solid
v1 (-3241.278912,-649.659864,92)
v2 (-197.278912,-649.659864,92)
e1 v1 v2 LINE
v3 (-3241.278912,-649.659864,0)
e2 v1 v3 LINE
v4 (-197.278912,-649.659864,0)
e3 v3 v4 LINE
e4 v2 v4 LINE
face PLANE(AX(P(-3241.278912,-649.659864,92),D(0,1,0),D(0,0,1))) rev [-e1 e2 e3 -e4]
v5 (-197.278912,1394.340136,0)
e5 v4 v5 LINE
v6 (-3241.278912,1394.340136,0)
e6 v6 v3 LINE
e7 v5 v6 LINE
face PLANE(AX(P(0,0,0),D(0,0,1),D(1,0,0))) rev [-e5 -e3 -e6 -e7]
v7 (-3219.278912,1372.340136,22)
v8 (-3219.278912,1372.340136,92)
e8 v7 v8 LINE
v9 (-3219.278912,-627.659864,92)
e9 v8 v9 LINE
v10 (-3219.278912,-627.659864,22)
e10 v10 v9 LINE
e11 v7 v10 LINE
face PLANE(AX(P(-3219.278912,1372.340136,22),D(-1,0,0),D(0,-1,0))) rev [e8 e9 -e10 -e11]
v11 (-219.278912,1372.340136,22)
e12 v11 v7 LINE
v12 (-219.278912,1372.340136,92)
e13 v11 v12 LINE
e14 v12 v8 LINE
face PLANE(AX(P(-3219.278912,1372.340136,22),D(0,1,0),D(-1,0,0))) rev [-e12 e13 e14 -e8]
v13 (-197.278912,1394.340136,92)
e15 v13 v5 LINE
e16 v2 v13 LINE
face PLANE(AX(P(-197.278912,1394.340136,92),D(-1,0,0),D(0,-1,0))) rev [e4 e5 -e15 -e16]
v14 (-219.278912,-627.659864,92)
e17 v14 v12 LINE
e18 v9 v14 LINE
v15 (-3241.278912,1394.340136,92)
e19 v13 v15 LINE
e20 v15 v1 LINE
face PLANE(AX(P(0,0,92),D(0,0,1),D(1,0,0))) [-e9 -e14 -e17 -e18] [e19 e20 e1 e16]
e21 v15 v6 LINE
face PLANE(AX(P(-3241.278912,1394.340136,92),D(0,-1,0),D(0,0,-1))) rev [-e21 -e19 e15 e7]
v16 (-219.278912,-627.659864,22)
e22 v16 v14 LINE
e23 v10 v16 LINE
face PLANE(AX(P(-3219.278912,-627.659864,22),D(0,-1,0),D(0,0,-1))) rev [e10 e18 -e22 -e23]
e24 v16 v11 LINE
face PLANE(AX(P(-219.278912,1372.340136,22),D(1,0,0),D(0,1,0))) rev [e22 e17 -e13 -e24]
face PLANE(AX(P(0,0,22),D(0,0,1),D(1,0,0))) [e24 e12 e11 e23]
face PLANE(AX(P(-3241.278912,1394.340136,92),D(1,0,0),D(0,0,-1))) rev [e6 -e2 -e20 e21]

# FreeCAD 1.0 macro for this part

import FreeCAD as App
import Part
import Sketcher

doc = App.newDocument("Part")
params = doc.addObject("Spreadsheet::Sheet", "Params")
for row, (alias, value) in enumerate([
    ("sketch1_width", "3044 mm"),
    ("sketch1_height", "2044 mm"),
    ("pad1_length", "92 mm"),
    ("sketch2_width", "3000 mm"),
    ("sketch2_height", "2000 mm"),
    ("pocket1_length", "70 mm"),
], start=1):
    params.set(f"A{row}", alias)
    params.set(f"B{row}", "=" + value)
    params.setAlias(f"B{row}", alias)

body = doc.addObject("PartDesign::Body", "Body")

sketch1 = body.newObject("Sketcher::SketchObject", "Sketch")
sketch1.AttachmentSupport = (doc.getObject("XY_Plane"), [""])
sketch1.MapMode = "FlatFace"
sketch1.addGeometry([
    Part.LineSegment(App.Vector(-3241, 1394, 0), App.Vector(-3241, -650, 0)),
    Part.LineSegment(App.Vector(-3241, -650, 0), App.Vector(-197, -650, 0)),
    Part.LineSegment(App.Vector(-197, -650, 0), App.Vector(-197, 1394, 0)),
    Part.LineSegment(App.Vector(-197, 1394, 0), App.Vector(-3241, 1394, 0)),
], False)
sketch1.addConstraint([
    Sketcher.Constraint("Coincident", 0, 2, 1, 1),
    Sketcher.Constraint("Coincident", 1, 2, 2, 1),
    Sketcher.Constraint("Coincident", 2, 2, 3, 1),
    Sketcher.Constraint("Coincident", 3, 2, 0, 1),
    Sketcher.Constraint("Vertical", 0),
    Sketcher.Constraint("Horizontal", 1),
    Sketcher.Constraint("Vertical", 2),
    Sketcher.Constraint("Horizontal", 3),
    Sketcher.Constraint("DistanceX", 1, 1, 1, 2, 3044.0),
    Sketcher.Constraint("DistanceY", 0, 2, 0, 1, 2044.0),
    Sketcher.Constraint("DistanceX", 0, 2, -1, 1, 3241.278912),
    Sketcher.Constraint("DistanceY", 0, 2, -1, 1, 649.659864),
])
sketch1.setExpression("Constraints[8]", "Params.sketch1_width")
sketch1.setExpression("Constraints[9]", "Params.sketch1_height")
pad1 = body.newObject("PartDesign::Pad", "Pad")
pad1.Profile = sketch1
pad1.setExpression("Length", "Params.pad1_length")

sketch2 = body.newObject("Sketcher::SketchObject", "Sketch001")
sketch2.AttachmentSupport = (doc.getObject("XY_Plane"), [""])
sketch2.MapMode = "FlatFace"
sketch2.AttachmentOffset = App.Placement(App.Vector(0, 0, 92), App.Rotation())
sketch2.addGeometry([
    Part.LineSegment(App.Vector(-3219, 1372, 0), App.Vector(-3219, -628, 0)),
    Part.LineSegment(App.Vector(-3219, -628, 0), App.Vector(-219, -628, 0)),
    Part.LineSegment(App.Vector(-219, -628, 0), App.Vector(-219, 1372, 0)),
    Part.LineSegment(App.Vector(-219, 1372, 0), App.Vector(-3219, 1372, 0)),
], False)
sketch2.addConstraint([
    Sketcher.Constraint("Coincident", 0, 2, 1, 1),
    Sketcher.Constraint("Coincident", 1, 2, 2, 1),
    Sketcher.Constraint("Coincident", 2, 2, 3, 1),
    Sketcher.Constraint("Coincident", 3, 2, 0, 1),
    Sketcher.Constraint("Vertical", 0),
    Sketcher.Constraint("Horizontal", 1),
    Sketcher.Constraint("Vertical", 2),
    Sketcher.Constraint("Horizontal", 3),
    Sketcher.Constraint("DistanceX", 1, 1, 1, 2, 3000.0),
    Sketcher.Constraint("DistanceY", 0, 2, 0, 1, 2000.0),
    Sketcher.Constraint("DistanceX", 0, 2, -1, 1, 3219.278912),
    Sketcher.Constraint("DistanceY", 0, 2, -1, 1, 627.659864),
])
sketch2.setExpression("Constraints[8]", "Params.sketch2_width")
sketch2.setExpression("Constraints[9]", "Params.sketch2_height")
pocket1 = body.newObject("PartDesign::Pocket", "Pocket")
pocket1.Profile = sketch2
pocket1.setExpression("Length", "Params.pocket1_length")

doc.recompute()
